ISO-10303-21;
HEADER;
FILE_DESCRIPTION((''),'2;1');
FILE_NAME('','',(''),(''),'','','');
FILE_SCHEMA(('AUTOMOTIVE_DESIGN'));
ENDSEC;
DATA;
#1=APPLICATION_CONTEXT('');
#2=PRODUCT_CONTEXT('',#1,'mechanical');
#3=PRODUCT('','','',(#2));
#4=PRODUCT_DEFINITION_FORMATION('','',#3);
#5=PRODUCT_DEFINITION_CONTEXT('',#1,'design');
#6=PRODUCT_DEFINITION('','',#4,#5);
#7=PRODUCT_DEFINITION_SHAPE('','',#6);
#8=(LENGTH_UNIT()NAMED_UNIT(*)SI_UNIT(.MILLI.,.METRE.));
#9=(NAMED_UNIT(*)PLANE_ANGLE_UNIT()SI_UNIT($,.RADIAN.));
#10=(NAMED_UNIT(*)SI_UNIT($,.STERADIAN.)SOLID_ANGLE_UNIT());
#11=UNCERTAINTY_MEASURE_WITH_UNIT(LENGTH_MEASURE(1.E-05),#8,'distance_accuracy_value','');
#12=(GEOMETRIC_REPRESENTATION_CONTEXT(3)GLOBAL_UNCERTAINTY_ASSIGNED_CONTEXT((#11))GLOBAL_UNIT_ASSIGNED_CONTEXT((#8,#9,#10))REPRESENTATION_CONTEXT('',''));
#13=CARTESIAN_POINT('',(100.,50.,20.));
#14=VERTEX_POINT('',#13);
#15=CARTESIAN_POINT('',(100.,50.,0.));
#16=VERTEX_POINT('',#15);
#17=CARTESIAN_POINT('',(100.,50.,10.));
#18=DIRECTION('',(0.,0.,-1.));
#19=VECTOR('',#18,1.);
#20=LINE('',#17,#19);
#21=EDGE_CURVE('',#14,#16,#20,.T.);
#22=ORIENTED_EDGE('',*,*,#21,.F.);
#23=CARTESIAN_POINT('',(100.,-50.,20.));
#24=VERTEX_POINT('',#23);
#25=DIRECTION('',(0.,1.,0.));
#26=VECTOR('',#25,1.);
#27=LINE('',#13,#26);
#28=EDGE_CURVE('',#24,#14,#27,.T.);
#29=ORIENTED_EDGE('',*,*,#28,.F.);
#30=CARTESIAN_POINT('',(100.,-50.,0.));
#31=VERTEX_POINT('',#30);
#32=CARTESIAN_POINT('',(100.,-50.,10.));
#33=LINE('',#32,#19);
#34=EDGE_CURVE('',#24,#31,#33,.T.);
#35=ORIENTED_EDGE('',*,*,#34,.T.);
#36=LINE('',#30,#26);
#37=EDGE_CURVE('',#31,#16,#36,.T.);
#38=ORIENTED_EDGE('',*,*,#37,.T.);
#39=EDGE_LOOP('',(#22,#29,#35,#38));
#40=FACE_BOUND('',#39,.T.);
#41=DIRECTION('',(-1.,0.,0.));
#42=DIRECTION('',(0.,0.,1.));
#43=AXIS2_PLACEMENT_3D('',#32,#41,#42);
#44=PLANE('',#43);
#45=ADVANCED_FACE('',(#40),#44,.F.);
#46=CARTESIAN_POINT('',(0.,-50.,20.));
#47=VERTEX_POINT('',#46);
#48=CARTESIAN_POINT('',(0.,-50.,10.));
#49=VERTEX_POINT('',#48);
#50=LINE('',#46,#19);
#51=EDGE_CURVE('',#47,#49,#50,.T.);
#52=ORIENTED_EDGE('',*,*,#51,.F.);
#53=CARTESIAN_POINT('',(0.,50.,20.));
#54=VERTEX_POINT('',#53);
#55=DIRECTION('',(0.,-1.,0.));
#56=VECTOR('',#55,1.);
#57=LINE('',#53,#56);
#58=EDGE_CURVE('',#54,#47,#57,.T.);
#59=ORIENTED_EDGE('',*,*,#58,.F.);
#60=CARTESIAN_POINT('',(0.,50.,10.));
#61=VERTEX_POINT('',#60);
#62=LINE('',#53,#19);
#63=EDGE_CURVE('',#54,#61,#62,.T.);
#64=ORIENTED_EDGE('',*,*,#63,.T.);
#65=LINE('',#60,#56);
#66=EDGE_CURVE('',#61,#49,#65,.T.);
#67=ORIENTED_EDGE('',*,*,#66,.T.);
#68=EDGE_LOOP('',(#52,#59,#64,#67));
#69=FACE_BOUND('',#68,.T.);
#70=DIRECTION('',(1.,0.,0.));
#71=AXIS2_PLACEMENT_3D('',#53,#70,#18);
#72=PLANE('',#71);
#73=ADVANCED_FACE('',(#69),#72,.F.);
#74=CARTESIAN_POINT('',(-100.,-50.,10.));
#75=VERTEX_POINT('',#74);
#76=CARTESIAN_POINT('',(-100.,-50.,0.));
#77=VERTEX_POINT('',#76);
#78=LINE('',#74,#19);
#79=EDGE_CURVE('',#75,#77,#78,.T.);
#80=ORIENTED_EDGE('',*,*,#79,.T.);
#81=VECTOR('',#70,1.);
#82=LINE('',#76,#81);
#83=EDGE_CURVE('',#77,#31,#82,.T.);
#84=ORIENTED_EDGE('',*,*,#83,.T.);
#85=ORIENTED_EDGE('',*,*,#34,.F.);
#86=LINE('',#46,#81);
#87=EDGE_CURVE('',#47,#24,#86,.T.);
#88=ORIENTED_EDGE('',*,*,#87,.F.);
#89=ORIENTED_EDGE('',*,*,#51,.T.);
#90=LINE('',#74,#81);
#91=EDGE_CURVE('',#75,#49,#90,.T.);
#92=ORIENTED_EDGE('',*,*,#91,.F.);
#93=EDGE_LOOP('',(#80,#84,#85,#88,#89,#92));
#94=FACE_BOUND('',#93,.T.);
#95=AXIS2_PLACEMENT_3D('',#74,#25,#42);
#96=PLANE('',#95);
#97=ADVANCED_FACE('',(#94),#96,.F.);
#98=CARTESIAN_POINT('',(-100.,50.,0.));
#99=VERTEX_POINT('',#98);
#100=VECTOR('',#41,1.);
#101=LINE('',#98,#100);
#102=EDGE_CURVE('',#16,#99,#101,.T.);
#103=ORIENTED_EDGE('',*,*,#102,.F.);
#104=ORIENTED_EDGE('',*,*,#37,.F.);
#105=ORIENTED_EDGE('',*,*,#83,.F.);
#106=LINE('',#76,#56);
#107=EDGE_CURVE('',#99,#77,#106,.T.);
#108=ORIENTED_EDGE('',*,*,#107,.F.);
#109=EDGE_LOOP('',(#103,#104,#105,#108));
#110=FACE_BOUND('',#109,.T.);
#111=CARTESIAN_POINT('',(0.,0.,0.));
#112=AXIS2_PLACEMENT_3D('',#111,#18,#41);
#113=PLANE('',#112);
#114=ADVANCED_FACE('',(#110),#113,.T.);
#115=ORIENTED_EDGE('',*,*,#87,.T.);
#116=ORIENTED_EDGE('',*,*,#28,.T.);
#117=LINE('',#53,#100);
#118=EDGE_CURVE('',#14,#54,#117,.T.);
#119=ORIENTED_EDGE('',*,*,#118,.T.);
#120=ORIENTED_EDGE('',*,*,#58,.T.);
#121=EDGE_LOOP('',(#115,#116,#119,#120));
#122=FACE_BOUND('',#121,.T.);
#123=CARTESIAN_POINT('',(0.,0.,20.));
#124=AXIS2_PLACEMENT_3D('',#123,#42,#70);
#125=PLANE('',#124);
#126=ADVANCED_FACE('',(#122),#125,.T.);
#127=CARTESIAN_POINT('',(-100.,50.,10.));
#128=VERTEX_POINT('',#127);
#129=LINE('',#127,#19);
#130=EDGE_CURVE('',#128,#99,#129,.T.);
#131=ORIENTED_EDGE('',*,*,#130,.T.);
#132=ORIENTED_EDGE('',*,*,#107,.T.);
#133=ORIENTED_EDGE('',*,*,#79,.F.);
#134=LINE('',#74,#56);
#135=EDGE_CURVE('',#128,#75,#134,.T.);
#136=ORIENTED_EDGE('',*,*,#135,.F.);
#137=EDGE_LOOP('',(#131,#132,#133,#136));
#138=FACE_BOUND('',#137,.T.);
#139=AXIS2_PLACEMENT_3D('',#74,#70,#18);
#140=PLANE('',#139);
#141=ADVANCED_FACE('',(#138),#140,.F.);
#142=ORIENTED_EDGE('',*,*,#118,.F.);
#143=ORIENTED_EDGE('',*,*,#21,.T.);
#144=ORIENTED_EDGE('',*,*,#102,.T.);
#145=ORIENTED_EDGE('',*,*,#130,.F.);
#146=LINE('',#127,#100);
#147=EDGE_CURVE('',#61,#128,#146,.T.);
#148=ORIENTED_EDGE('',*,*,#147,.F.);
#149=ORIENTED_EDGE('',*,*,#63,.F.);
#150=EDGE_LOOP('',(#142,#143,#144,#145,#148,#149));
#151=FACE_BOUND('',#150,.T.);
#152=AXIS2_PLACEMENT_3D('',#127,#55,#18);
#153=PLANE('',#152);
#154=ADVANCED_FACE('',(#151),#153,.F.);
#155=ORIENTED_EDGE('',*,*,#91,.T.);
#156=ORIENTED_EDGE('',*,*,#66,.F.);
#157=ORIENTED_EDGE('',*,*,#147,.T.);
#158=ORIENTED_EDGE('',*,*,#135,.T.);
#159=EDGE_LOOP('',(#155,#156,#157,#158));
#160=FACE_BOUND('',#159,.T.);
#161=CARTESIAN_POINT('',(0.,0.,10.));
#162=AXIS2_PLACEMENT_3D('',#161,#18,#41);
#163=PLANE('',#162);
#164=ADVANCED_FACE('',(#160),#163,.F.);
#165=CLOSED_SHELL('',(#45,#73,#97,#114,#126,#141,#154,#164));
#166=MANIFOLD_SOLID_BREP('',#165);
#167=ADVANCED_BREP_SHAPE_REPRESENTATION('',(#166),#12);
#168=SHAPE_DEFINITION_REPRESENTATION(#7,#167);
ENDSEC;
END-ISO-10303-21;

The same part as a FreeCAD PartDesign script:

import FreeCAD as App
import Part
import Sketcher

V = App.Vector


def add_polygon(sketch, points):
    """Adds a closed chain of lines whose ends are joined by coincident constraints."""
    first, n = sketch.GeometryCount, len(points)
    for a, b in zip(points, points[1:] + points[:1]):
        sketch.addGeometry(Part.LineSegment(App.Vector(*a, 0), App.Vector(*b, 0)), False)
    for i in range(n):
        sketch.addConstraint(Sketcher.Constraint("Coincident", first + i, 2, first + (i + 1) % n, 1))

doc = App.newDocument("Part")
body = doc.addObject("PartDesign::Body", "Body")

# Sketch on XY plane
sketch1 = body.newObject("Sketcher::SketchObject", "Sketch")
sketch1.AttachmentSupport = (doc.getObject("XY_Plane"), [""])
sketch1.MapMode = "FlatFace"
add_polygon(sketch1, [(-100, 50), (-100, -50), (100, -50), (100, 50)])  # lines 0-3
sketch1.addConstraint([
    Sketcher.Constraint("Vertical", 0),
    Sketcher.Constraint("Horizontal", 1),
    Sketcher.Constraint("Vertical", 2),
    Sketcher.Constraint("Horizontal", 3),
    Sketcher.Constraint("Symmetric", 0, 2, 2, 2, -1, 1),
    Sketcher.Constraint("DistanceX", 1, 1, 1, 2, 200.0),
    Sketcher.Constraint("DistanceY", 0, 2, 0, 1, 100.0),
])
pad1 = body.newObject("PartDesign::Pad", "Pad")
pad1.Profile = sketch1
pad1.Length = 10

# Sketch on XY plane
sketch2 = body.newObject("Sketcher::SketchObject", "Sketch001")
sketch2.AttachmentSupport = (doc.getObject("XY_Plane"), [""])
sketch2.MapMode = "FlatFace"
sketch2.AttachmentOffset = App.Placement(V(0, 0, 10), App.Rotation())
add_polygon(sketch2, [(0, 50), (0, -50), (100, -50), (100, 50)])  # lines 0-3
sketch2.addConstraint([
    Sketcher.Constraint("Vertical", 0),
    Sketcher.Constraint("Horizontal", 1),
    Sketcher.Constraint("Vertical", 2),
    Sketcher.Constraint("Horizontal", 3),
    Sketcher.Constraint("Symmetric", 0, 2, 3, 2, -1, 1),
    Sketcher.Constraint("Equal", 3, 0),
    Sketcher.Constraint("DistanceX", 1, 1, 1, 2, 100.0),
])
pad2 = body.newObject("PartDesign::Pad", "Pad001")
pad2.Profile = sketch2
pad2.Length = 10

doc.recompute()
